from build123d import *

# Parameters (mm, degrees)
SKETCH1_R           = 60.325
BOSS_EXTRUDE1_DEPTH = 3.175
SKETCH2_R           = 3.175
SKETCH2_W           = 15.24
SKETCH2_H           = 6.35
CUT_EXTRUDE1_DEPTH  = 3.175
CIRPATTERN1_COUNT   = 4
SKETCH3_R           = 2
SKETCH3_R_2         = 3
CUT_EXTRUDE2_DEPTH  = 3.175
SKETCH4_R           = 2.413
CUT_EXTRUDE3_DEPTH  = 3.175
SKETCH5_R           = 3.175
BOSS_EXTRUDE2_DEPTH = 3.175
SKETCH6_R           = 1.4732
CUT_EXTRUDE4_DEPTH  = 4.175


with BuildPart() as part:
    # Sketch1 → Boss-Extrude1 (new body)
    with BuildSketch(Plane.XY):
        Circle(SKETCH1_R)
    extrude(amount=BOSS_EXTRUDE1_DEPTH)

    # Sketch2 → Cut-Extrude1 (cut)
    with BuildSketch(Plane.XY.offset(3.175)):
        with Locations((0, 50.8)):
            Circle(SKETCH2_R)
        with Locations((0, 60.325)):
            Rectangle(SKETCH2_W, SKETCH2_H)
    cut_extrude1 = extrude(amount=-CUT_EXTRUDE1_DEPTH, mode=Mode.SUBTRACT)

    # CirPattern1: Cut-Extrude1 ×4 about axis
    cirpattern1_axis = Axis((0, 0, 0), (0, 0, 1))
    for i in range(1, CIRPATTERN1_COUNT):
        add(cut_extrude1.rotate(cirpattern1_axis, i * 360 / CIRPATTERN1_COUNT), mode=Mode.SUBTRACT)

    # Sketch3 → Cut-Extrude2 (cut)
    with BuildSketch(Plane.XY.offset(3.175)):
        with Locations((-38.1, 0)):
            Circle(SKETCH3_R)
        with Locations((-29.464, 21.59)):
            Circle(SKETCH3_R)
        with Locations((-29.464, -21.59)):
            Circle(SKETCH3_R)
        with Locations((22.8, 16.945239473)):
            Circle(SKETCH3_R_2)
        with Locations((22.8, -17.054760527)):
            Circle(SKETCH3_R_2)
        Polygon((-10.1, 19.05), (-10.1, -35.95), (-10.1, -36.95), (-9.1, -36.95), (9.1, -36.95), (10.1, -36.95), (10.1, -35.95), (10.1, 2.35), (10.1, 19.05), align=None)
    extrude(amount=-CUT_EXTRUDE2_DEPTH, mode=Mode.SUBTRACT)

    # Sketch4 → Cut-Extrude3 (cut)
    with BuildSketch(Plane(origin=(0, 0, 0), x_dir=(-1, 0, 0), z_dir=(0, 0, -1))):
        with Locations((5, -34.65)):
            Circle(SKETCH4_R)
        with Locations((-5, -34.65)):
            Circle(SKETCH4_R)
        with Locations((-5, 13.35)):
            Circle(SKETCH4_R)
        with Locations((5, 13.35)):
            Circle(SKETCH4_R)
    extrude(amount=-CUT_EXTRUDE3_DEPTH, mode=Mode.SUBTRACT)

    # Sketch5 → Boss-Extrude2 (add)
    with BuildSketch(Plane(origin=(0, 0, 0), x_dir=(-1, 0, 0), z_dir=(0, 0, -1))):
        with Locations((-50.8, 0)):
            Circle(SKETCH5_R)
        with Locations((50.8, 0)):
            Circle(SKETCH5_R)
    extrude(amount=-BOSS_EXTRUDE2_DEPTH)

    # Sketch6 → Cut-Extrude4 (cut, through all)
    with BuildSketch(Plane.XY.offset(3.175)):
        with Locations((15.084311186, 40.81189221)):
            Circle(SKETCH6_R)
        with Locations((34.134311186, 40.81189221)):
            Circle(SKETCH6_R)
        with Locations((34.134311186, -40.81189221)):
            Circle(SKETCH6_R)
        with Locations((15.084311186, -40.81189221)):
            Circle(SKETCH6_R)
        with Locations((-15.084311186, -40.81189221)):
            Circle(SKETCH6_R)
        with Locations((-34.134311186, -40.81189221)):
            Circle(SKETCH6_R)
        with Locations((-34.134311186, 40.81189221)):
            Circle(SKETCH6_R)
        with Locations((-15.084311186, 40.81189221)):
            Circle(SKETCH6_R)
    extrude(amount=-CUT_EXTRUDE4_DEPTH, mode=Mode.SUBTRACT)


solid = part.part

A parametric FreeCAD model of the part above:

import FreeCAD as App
import Part
import Sketcher
from FreeCAD import Vector
Q = App.Units.Quantity


def add_polygon(sketch, points):
    """Adds a closed chain of lines whose ends are joined by coincident constraints."""
    first, n = sketch.GeometryCount, len(points)
    for a, b in zip(points, points[1:] + points[:1]):
        sketch.addGeometry(Part.LineSegment(App.Vector(*a, 0), App.Vector(*b, 0)), False)
    for i in range(n):
        sketch.addConstraint(Sketcher.Constraint("Coincident", first + i, 2, first + (i + 1) % n, 1))

doc = App.newDocument("Part")
body = doc.addObject("PartDesign::Body", "Body")

sketch1 = body.newObject("Sketcher::SketchObject", "Sketch")
sketch1.AttachmentSupport = (doc.getObject("XY_Plane"), [""])
sketch1.MapMode = "FlatFace"
sketch1.addGeometry(Part.Circle(Vector(0, 0, 0), Vector(0, 0, 1), 60), False)
sketch1.addConstraint(Sketcher.Constraint("Coincident", 0, 3, -1, 1))
sketch1.addConstraint(Sketcher.Constraint("Diameter", 0, Q("4.75 in")))
pad1 = body.newObject("PartDesign::Pad", "Pad")
pad1.Profile = sketch1
pad1.Length = Q("0.125 in")

sketch2 = body.newObject("Sketcher::SketchObject", "Sketch001")
sketch2.AttachmentSupport = (doc.getObject("XY_Plane"), [""])
sketch2.MapMode = "FlatFace"
sketch2.AttachmentOffset = App.Placement(Vector(0, 0, 0.125 * 25.4), App.Rotation())
sketch2.addGeometry(Part.Circle(Vector(0, 50.8, 0), Vector(0, 0, 1), 3.2), False)
add_polygon(sketch2, [(-7.6, 63.5), (-7.6, 57.1), (7.6, 57.1), (7.6, 63.5)])
sketch2.addConstraint(Sketcher.Constraint("Vertical", 1))
sketch2.addConstraint(Sketcher.Constraint("Horizontal", 2))
sketch2.addConstraint(Sketcher.Constraint("Vertical", 3))
sketch2.addConstraint(Sketcher.Constraint("Horizontal", 4))
sketch2.addConstraint(Sketcher.Constraint("PointOnObject", 0, 3, -2))
sketch2.addConstraint(Sketcher.Constraint("Diameter", 0, Q("0.25 in")))
sketch2.addConstraint(Sketcher.Constraint("DistanceX", 2, 1, 2, 2, Q("0.6 in")))
sketch2.addConstraint(Sketcher.Constraint("DistanceY", -1, 1, 0, 3, Q("2 in")))
sketch2.addConstraint(Sketcher.Constraint("DistanceY", 1, 2, 1, 1, Q("0.25 in")))
sketch2.addConstraint(Sketcher.Constraint("DistanceX", 1, 2, -1, 1, Q("0.3 in")))
sketch2.addConstraint(Sketcher.Constraint("DistanceY", -1, 1, 3, 2, Q("2.5 in")))
pocket1 = body.newObject("PartDesign::Pocket", "Pocket")
pocket1.Profile = sketch2
pocket1.Length = Q("0.125 in")
doc.recompute()

polarpattern = body.newObject("PartDesign::PolarPattern", "PolarPattern")
polarpattern.Originals = [pocket1]
polarpattern.Axis = (doc.getObject("Z_Axis"), [""])
polarpattern.Angle = 360
polarpattern.Occurrences = 4
body.Tip = polarpattern

sketch3 = body.newObject("Sketcher::SketchObject", "Sketch002")
sketch3.AttachmentSupport = (doc.getObject("XY_Plane"), [""])
sketch3.MapMode = "FlatFace"
sketch3.AttachmentOffset = App.Placement(Vector(0, 0, 0.125 * 25.4), App.Rotation())
sketch3.addGeometry(Part.Circle(Vector(-38.1, 0, 0), Vector(0, 0, 1), 2), False)
sketch3.addGeometry(Part.Circle(Vector(-29.5, 21.6, 0), Vector(0, 0, 1), 2), False)
sketch3.addGeometry(Part.Circle(Vector(-29.5, -21.6, 0), Vector(0, 0, 1), 2), False)
sketch3.addGeometry(Part.Circle(Vector(22.8, 16.9, 0), Vector(0, 0, 1), 3), False)
sketch3.addGeometry(Part.Circle(Vector(22.8, -17.1, 0), Vector(0, 0, 1), 3), False)
add_polygon(sketch3, [(-10.1, 19.1), (-10.1, -37), (10.1, -37), (10.1, 19.1)])
sketch3.addConstraint(Sketcher.Constraint("Vertical", 5))
sketch3.addConstraint(Sketcher.Constraint("Horizontal", 6))
sketch3.addConstraint(Sketcher.Constraint("Vertical", 7))
sketch3.addConstraint(Sketcher.Constraint("Horizontal", 8))
sketch3.addConstraint(Sketcher.Constraint("Equal", 0, 1))
sketch3.addConstraint(Sketcher.Constraint("Equal", 1, 2))
sketch3.addConstraint(Sketcher.Constraint("Equal", 3, 4))
sketch3.addConstraint(Sketcher.Constraint("Symmetric", 1, 3, 2, 3, -1))
sketch3.addConstraint(Sketcher.Constraint("PointOnObject", 0, 3, -1))
sketch3.addConstraint(Sketcher.Constraint("Vertical", 3, 3, 4, 3))
sketch3.addConstraint(Sketcher.Constraint("DistanceX", 0, 3, -1, 1, Q("1.5 in")))
sketch3.addConstraint(Sketcher.Constraint("DistanceY", 2, 3, 1, 3, Q("1.7 in")))
sketch3.addConstraint(Sketcher.Constraint("DistanceX", 6, 2, 4, 3, Q("0.5 in")))
sketch3.addConstraint(Sketcher.Constraint("DistanceY", 7, 2, 1, 3, Q("0.1 in")))
sketch3.addConstraint(Sketcher.Constraint("Diameter", 0, Q("4 mm")))
sketch3.addConstraint(Sketcher.Constraint("Diameter", 3, Q("6 mm")))
sketch3.addConstraint(Sketcher.Constraint("DistanceX", 1, 3, -1, 1, Q("1.16 in")))
sketch3.addConstraint(Sketcher.Constraint("DistanceX", 6, 1, 6, 2, Q("20.2 mm")))
sketch3.addConstraint(Sketcher.Constraint("DistanceY", 5, 2, 5, 1, Q("56 mm")))
sketch3.addConstraint(Sketcher.Constraint("DistanceX", -1, 1, 3, 3, Q("22.8 mm")))
sketch3.addConstraint(Sketcher.Constraint("DistanceY", 4, 3, 3, 3, Q("34 mm")))
sketch3.addConstraint(Sketcher.Constraint("DistanceY", -1, 1, 3, 3, Q("16.945239 mm")))
pocket2 = body.newObject("PartDesign::Pocket", "Pocket001")
pocket2.Profile = sketch3
pocket2.Length = Q("0.125 in")

sketch4 = body.newObject("Sketcher::SketchObject", "Sketch003")
sketch4.AttachmentSupport = (doc.getObject("XY_Plane"), [""])
sketch4.MapMode = "FlatFace"
sketch4.addGeometry(Part.Circle(Vector(-5, -34.6, 0), Vector(0, 0, 1), 2.4), False)
sketch4.addGeometry(Part.Circle(Vector(5, -34.6, 0), Vector(0, 0, 1), 2.4), False)
sketch4.addGeometry(Part.Circle(Vector(5, 13.3, 0), Vector(0, 0, 1), 2.4), False)
sketch4.addGeometry(Part.Circle(Vector(-5, 13.3, 0), Vector(0, 0, 1), 2.4), False)
sketch4.addConstraint(Sketcher.Constraint("Equal", 0, 1))
sketch4.addConstraint(Sketcher.Constraint("Equal", 1, 2))
sketch4.addConstraint(Sketcher.Constraint("Equal", 2, 3))
sketch4.addConstraint(Sketcher.Constraint("Symmetric", 0, 3, 1, 3, -2))
sketch4.addConstraint(Sketcher.Constraint("Symmetric", 2, 3, 3, 3, -2))
sketch4.addConstraint(Sketcher.Constraint("Vertical", 1, 3, 2, 3))
sketch4.addConstraint(Sketcher.Constraint("Diameter", 0, Q("0.19 in")))
sketch4.addConstraint(Sketcher.Constraint("DistanceX", 0, 3, -1, 1, Q("5 mm")))
sketch4.addConstraint(Sketcher.Constraint("DistanceY", 0, 3, -1, 1, Q("34.65 mm")))
sketch4.addConstraint(Sketcher.Constraint("DistanceY", -1, 1, 2, 3, Q("13.35 mm")))
pocket3 = body.newObject("PartDesign::Pocket", "Pocket002")
pocket3.Profile = sketch4
pocket3.Length = Q("0.125 in")
pocket3.Reversed = True

sketch5 = body.newObject("Sketcher::SketchObject", "Sketch004")
sketch5.AttachmentSupport = (doc.getObject("XY_Plane"), [""])
sketch5.MapMode = "FlatFace"
sketch5.addGeometry(Part.Circle(Vector(50.8, 0, 0), Vector(0, 0, 1), 3.2), False)
sketch5.addGeometry(Part.Circle(Vector(-50.8, 0, 0), Vector(0, 0, 1), 3.2), False)
sketch5.addConstraint(Sketcher.Constraint("Equal", 0, 1))
sketch5.addConstraint(Sketcher.Constraint("Symmetric", 0, 3, 1, 3, -1, 1))
sketch5.addConstraint(Sketcher.Constraint("PointOnObject", 0, 3, -1))
sketch5.addConstraint(Sketcher.Constraint("Diameter", 0, Q("0.25 in")))
sketch5.addConstraint(Sketcher.Constraint("DistanceX", -1, 1, 0, 3, Q("2 in")))
pad2 = body.newObject("PartDesign::Pad", "Pad001")
pad2.Profile = sketch5
pad2.Length = Q("0.125 in")

sketch6 = body.newObject("Sketcher::SketchObject", "Sketch005")
sketch6.AttachmentSupport = (doc.getObject("XY_Plane"), [""])
sketch6.MapMode = "FlatFace"
sketch6.AttachmentOffset = App.Placement(Vector(0, 0, 0.125 * 25.4), App.Rotation())
sketch6.addGeometry(Part.Circle(Vector(15.1, 40.8, 0), Vector(0, 0, 1), 1.5), False)
sketch6.addGeometry(Part.Circle(Vector(34.1, 40.8, 0), Vector(0, 0, 1), 1.5), False)
sketch6.addGeometry(Part.Circle(Vector(34.1, -40.8, 0), Vector(0, 0, 1), 1.5), False)
sketch6.addGeometry(Part.Circle(Vector(15.1, -40.8, 0), Vector(0, 0, 1), 1.5), False)
sketch6.addGeometry(Part.Circle(Vector(-15.1, -40.8, 0), Vector(0, 0, 1), 1.5), False)
sketch6.addGeometry(Part.Circle(Vector(-34.1, -40.8, 0), Vector(0, 0, 1), 1.5), False)
sketch6.addGeometry(Part.Circle(Vector(-34.1, 40.8, 0), Vector(0, 0, 1), 1.5), False)
sketch6.addGeometry(Part.Circle(Vector(-15.1, 40.8, 0), Vector(0, 0, 1), 1.5), False)
sketch6.addConstraint(Sketcher.Constraint("Equal", 0, 1))
sketch6.addConstraint(Sketcher.Constraint("Equal", 1, 2))
sketch6.addConstraint(Sketcher.Constraint("Equal", 2, 3))
sketch6.addConstraint(Sketcher.Constraint("Equal", 3, 4))
sketch6.addConstraint(Sketcher.Constraint("Equal", 4, 5))
sketch6.addConstraint(Sketcher.Constraint("Equal", 5, 6))
sketch6.addConstraint(Sketcher.Constraint("Equal", 6, 7))
sketch6.addConstraint(Sketcher.Constraint("Symmetric", 0, 3, 4, 3, -1, 1))
sketch6.addConstraint(Sketcher.Constraint("Symmetric", 1, 3, 5, 3, -1, 1))
sketch6.addConstraint(Sketcher.Constraint("Symmetric", 2, 3, 6, 3, -1, 1))
sketch6.addConstraint(Sketcher.Constraint("Symmetric", 3, 3, 7, 3, -1, 1))
sketch6.addConstraint(Sketcher.Constraint("Symmetric", 3, 3, 4, 3, -2))
sketch6.addConstraint(Sketcher.Constraint("Symmetric", 2, 3, 5, 3, -2))
sketch6.addConstraint(Sketcher.Constraint("Horizontal", 0, 3, 1, 3))
sketch6.addConstraint(Sketcher.Constraint("Diameter", 0, Q("0.116 in")))
sketch6.addConstraint(Sketcher.Constraint("DistanceX", 0, 3, 1, 3, Q("0.75 in")))
sketch6.addConstraint(Sketcher.Constraint("DistanceX", -1, 1, 0, 3, Q("15.084311 mm")))
sketch6.addConstraint(Sketcher.Constraint("DistanceY", -1, 1, 0, 3, Q("40.811892 mm")))
pocket4 = body.newObject("PartDesign::Pocket", "Pocket003")
pocket4.Profile = sketch6
pocket4.Type = "ThroughAll"

doc.recompute()
